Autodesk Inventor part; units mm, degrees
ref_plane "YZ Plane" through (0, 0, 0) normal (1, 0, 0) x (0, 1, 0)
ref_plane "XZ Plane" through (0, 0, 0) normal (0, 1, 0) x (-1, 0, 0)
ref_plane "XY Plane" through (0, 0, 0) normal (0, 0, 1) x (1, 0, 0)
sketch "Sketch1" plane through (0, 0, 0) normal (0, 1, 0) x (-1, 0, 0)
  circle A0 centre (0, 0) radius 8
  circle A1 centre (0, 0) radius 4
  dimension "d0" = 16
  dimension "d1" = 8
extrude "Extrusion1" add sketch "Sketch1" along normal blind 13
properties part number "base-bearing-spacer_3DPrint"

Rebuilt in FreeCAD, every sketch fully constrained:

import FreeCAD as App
import Part
import Sketcher

doc = App.newDocument("Part")
params = doc.addObject("Spreadsheet::Sheet", "Params")
for row, (alias, value) in enumerate([
    ("sketch1_diameter", "16 mm"),
    ("sketch1_diameter2", "8 mm"),
    ("pad1_length", "13 mm"),
], start=1):
    params.set(f"A{row}", alias)
    params.set(f"B{row}", "=" + value)
    params.setAlias(f"B{row}", alias)

body = doc.addObject("PartDesign::Body", "Body")

# Sketch on XZ plane
sketch1 = body.newObject("Sketcher::SketchObject", "Sketch")
sketch1.AttachmentSupport = (doc.getObject("XZ_Plane"), [""])
sketch1.MapMode = "FlatFace"
sketch1.addGeometry([
    Part.Circle(App.Vector(0, 0, 0), App.Vector(0, 0, 1), 8),
    Part.Circle(App.Vector(0, 0, 0), App.Vector(0, 0, 1), 4),
], False)
sketch1.addConstraint([
    Sketcher.Constraint("Coincident", 0, 3, -1, 1),
    Sketcher.Constraint("Coincident", 1, 3, -1, 1),
    Sketcher.Constraint("Diameter", 0, 16.0),
    Sketcher.Constraint("Diameter", 1, 8.0),
])
sketch1.setExpression("Constraints[2]", "Params.sketch1_diameter")
sketch1.setExpression("Constraints[3]", "Params.sketch1_diameter2")
pad1 = body.newObject("PartDesign::Pad", "Pad")
pad1.Profile = sketch1
pad1.setExpression("Length", "Params.pad1_length")
pad1.Reversed = True

doc.recompute()
